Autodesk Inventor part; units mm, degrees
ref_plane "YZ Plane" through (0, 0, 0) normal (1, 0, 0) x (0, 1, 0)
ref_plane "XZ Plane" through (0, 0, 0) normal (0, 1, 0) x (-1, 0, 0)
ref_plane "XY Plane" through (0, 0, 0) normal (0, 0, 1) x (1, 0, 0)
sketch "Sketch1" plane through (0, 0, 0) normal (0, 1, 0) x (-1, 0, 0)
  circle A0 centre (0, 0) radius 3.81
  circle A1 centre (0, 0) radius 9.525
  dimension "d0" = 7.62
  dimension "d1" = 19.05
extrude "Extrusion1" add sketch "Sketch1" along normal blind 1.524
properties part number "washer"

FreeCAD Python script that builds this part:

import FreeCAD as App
import Part
import Sketcher
Q = App.Units.Quantity

doc = App.newDocument("Part")
body = doc.addObject("PartDesign::Body", "Body")

sketch1 = doc.addObject("Sketcher::SketchObject", "Sketch")
body.addObject(sketch1)
sketch1.AttachmentSupport = (doc.XZ_Plane, [""])
sketch1.MapMode = "FlatFace"
sketch1.addGeometry([
    Part.Circle(App.Vector(0, 0, 0), App.Vector(0, 0, 1), 9.525),
    Part.Circle(App.Vector(0, 0, 0), App.Vector(0, 0, 1), 3.81),
], False)
sketch1.addConstraint([
    Sketcher.Constraint("Coincident", 0, 3, -1, 1),
    Sketcher.Constraint("Coincident", 1, 3, -1, 1),
    Sketcher.Constraint("Diameter", 1, Q("0.3 in")),
    Sketcher.Constraint("Diameter", 0, Q("0.75 in")),
])
pad1 = doc.addObject("PartDesign::Pad", "Pad")
body.addObject(pad1)
pad1.Profile = sketch1
pad1.Length = Q("0.06 in")
pad1.Reversed = True

doc.recompute()
